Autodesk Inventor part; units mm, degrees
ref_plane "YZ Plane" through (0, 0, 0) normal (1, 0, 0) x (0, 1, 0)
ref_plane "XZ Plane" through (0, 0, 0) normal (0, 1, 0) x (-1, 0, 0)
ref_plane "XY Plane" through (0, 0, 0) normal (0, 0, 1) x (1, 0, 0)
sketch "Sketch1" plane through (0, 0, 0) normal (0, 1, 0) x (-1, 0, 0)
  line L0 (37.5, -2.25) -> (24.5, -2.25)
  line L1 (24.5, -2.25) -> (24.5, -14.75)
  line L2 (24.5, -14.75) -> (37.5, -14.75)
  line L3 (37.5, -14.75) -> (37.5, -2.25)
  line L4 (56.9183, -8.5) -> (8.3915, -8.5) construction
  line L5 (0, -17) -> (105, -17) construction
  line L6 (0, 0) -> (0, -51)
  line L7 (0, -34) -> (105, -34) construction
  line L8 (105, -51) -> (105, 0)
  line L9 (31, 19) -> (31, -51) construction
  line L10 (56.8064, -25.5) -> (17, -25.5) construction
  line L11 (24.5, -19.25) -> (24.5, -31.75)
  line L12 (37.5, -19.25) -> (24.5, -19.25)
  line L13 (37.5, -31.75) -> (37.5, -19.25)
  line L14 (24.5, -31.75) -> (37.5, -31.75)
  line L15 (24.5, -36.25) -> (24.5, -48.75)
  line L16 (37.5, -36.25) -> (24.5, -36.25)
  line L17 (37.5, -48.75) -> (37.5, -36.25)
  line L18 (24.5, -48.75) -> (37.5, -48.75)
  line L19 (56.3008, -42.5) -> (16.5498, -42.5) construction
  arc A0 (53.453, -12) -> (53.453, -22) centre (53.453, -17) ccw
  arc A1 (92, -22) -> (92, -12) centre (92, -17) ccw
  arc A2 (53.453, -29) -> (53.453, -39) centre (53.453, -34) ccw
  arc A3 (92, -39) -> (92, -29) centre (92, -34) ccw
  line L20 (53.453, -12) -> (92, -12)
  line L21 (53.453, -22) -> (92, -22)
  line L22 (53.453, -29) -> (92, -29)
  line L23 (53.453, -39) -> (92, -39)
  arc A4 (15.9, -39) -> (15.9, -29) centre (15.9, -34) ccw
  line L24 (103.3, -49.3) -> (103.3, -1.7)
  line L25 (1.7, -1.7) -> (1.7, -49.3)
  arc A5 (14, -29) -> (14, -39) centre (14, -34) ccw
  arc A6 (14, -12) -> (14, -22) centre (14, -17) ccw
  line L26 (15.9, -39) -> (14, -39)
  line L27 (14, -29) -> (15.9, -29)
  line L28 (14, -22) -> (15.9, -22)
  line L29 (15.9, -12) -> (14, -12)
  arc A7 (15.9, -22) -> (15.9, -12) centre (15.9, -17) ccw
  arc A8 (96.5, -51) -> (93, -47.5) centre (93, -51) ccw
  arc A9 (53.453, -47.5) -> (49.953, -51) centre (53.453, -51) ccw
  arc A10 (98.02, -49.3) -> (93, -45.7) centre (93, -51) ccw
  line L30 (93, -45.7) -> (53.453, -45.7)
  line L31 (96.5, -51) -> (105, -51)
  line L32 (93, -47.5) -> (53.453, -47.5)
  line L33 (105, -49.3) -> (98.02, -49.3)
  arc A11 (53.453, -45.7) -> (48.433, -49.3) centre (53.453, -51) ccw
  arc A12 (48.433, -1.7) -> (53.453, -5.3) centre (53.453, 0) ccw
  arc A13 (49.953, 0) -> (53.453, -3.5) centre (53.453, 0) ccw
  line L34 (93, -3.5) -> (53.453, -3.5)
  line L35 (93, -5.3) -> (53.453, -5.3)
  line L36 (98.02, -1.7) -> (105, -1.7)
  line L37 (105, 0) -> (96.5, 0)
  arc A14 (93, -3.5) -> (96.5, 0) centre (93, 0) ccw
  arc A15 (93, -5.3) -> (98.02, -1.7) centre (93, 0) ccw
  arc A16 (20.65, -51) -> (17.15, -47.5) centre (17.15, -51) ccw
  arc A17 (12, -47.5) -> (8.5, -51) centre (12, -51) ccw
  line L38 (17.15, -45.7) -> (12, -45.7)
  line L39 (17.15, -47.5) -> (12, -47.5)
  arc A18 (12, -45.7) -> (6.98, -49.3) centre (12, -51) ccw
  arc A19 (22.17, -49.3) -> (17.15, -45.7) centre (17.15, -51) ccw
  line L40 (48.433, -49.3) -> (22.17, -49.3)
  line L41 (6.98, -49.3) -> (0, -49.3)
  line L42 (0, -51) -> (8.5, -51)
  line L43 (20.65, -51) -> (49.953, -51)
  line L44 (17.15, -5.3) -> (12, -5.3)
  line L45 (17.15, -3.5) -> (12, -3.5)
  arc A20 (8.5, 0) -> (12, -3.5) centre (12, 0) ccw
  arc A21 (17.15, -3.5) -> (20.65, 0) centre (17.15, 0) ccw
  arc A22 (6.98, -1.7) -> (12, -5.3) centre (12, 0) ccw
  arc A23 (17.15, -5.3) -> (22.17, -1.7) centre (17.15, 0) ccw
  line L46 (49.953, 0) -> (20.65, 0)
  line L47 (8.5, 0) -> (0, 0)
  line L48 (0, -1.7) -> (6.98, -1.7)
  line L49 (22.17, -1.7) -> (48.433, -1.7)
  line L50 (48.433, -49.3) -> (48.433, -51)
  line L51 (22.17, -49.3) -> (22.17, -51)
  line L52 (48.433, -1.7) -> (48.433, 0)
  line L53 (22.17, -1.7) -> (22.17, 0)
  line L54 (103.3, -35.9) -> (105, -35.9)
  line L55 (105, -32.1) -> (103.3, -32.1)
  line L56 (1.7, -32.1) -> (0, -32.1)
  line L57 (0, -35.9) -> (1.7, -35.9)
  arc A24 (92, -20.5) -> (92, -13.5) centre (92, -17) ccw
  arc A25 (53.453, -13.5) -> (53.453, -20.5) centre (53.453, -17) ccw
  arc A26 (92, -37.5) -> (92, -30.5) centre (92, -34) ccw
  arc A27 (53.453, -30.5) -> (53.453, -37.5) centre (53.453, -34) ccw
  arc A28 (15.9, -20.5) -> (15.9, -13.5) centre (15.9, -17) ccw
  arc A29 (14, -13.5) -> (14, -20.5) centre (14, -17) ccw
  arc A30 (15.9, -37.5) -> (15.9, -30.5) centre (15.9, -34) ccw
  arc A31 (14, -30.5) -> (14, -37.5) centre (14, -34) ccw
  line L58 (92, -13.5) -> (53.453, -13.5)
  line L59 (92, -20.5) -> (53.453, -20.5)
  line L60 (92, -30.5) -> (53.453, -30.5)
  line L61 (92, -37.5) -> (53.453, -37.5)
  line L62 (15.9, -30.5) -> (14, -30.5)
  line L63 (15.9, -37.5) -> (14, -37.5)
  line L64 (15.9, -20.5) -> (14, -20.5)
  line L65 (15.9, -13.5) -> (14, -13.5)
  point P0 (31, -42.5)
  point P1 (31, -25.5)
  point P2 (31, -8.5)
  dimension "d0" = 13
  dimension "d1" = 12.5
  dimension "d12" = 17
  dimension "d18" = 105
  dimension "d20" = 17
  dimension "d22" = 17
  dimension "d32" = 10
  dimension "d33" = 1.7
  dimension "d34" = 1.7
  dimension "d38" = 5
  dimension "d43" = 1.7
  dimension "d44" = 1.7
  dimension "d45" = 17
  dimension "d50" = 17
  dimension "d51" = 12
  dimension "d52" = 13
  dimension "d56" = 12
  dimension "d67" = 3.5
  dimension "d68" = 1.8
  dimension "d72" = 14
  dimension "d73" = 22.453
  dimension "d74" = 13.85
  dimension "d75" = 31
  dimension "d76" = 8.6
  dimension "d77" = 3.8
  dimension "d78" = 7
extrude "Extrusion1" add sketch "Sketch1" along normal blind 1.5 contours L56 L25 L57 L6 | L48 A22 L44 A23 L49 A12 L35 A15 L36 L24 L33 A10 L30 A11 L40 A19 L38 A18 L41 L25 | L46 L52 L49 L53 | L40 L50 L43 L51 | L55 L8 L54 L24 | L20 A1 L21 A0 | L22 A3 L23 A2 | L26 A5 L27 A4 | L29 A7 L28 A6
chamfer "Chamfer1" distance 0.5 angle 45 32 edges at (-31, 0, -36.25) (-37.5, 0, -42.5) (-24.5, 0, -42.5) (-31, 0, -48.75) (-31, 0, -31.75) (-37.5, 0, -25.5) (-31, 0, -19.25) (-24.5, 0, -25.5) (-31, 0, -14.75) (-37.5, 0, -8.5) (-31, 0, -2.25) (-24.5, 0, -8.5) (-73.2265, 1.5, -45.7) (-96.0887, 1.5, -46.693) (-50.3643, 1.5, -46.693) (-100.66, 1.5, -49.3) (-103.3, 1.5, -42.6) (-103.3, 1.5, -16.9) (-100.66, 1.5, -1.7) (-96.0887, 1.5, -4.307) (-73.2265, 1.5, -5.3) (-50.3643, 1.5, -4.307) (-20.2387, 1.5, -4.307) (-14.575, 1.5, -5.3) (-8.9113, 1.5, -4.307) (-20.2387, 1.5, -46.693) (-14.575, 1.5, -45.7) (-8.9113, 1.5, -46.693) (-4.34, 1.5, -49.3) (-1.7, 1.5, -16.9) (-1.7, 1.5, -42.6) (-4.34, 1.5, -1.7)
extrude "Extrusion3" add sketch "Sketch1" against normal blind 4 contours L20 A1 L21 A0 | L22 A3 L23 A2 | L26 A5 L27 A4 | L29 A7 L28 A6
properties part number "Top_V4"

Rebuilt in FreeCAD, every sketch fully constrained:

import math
import FreeCAD as App
import Part
import Sketcher

V = App.Vector
Q = App.Units.Quantity


def edges_at(feature, points):
    """Names of the edges that pass closest to the given points."""
    edges = feature.Shape.Edges
    near = lambda p: min(range(len(edges)), key=lambda i: edges[i].distToShape(Part.Vertex(*p))[0])
    return sorted({f"Edge{near(p) + 1}" for p in points})


def add_polygon(sketch, points):
    """Adds a closed chain of lines whose ends are joined by coincident constraints."""
    first, n = sketch.GeometryCount, len(points)
    for a, b in zip(points, points[1:] + points[:1]):
        sketch.addGeometry(Part.LineSegment(App.Vector(*a, 0), App.Vector(*b, 0)), False)
    for i in range(n):
        sketch.addConstraint(Sketcher.Constraint("Coincident", first + i, 2, first + (i + 1) % n, 1))

doc = App.newDocument("Part")
body = doc.addObject("PartDesign::Body", "Body")

# Sketch on XZ plane
sketch1 = body.newObject("Sketcher::SketchObject", "Sketch")
sketch1.AttachmentSupport = (doc.getObject("XZ_Plane"), [""])
sketch1.MapMode = "FlatFace"
sketch1.addGeometry(Part.LineSegment(V(-1.7, -32.1, 0), V(0, -32.1, 0)), False)  # 0
sketch1.addGeometry(Part.LineSegment(V(0, -32.1, 0), V(0, -35.9, 0)), False)  # 1
sketch1.addGeometry(Part.LineSegment(V(0, -35.9, 0), V(-1.7, -35.9, 0)), False)  # 2
sketch1.addGeometry(Part.LineSegment(V(-1.7, -35.9, 0), V(-1.7, -49.3, 0)), False)  # 3
sketch1.addGeometry(Part.LineSegment(V(-1.7, -49.3, 0), V(-6.98, -49.3, 0)), False)  # 4
sketch1.addGeometry(Part.ArcOfCircle(Part.Circle(V(-12, -51, 0), V(0, 0, 1), 5.3), math.radians(18.708435), math.radians(90)), False)  # 5
sketch1.addGeometry(Part.LineSegment(V(-12, -45.7, 0), V(-17.15, -45.7, 0)), False)  # 6
sketch1.addGeometry(Part.ArcOfCircle(Part.Circle(V(-17.15, -51, 0), V(0, 0, 1), 5.300038), math.radians(90), math.radians(161.291565)), False)  # 7
sketch1.addGeometry(Part.LineSegment(V(-22.17, -49.3, 0), V(-22.17, -51, 0)), False)  # 8
sketch1.addGeometry(Part.LineSegment(V(-22.17, -51, 0), V(-48.433, -51, 0)), False)  # 9
sketch1.addGeometry(Part.LineSegment(V(-48.433, -51, 0), V(-48.433, -49.3, 0)), False)  # 10
sketch1.addGeometry(Part.ArcOfCircle(Part.Circle(V(-53.453, -51, 0), V(0, 0, 1), 5.3), math.radians(18.708435), math.radians(90)), False)  # 11
sketch1.addGeometry(Part.LineSegment(V(-53.453, -45.7, 0), V(-93, -45.7, 0)), False)  # 12
sketch1.addGeometry(Part.ArcOfCircle(Part.Circle(V(-93, -51, 0), V(0, 0, 1), 5.300038), math.radians(90), math.radians(161.291565)), False)  # 13
sketch1.addGeometry(Part.LineSegment(V(-98.02, -49.3, 0), V(-103.3, -49.3, 0)), False)  # 14
sketch1.addGeometry(Part.LineSegment(V(-103.3, -49.3, 0), V(-103.3, -35.9, 0)), False)  # 15
sketch1.addGeometry(Part.LineSegment(V(-103.3, -35.9, 0), V(-105, -35.9, 0)), False)  # 16
sketch1.addGeometry(Part.LineSegment(V(-105, -35.9, 0), V(-105, -32.1, 0)), False)  # 17
sketch1.addGeometry(Part.LineSegment(V(-105, -32.1, 0), V(-103.3, -32.1, 0)), False)  # 18
sketch1.addGeometry(Part.LineSegment(V(-103.3, -32.1, 0), V(-103.3, -1.7, 0)), False)  # 19
sketch1.addGeometry(Part.LineSegment(V(-103.3, -1.7, 0), V(-98.02, -1.7, 0)), False)  # 20
sketch1.addGeometry(Part.ArcOfCircle(Part.Circle(V(-93, 0, 0), V(0, 0, 1), 5.3), math.radians(-161.291565), math.radians(-90)), False)  # 21
sketch1.addGeometry(Part.LineSegment(V(-93, -5.3, 0), V(-53.453, -5.3, 0)), False)  # 22
sketch1.addGeometry(Part.ArcOfCircle(Part.Circle(V(-53.453, 0, 0), V(0, 0, 1), 5.300038), math.radians(-90), math.radians(-18.708435)), False)  # 23
sketch1.addGeometry(Part.LineSegment(V(-48.433, -1.7, 0), V(-48.433, 0, 0)), False)  # 24
sketch1.addGeometry(Part.LineSegment(V(-48.433, 0, 0), V(-22.17, 0, 0)), False)  # 25
sketch1.addGeometry(Part.LineSegment(V(-22.17, 0, 0), V(-22.17, -1.7, 0)), False)  # 26
sketch1.addGeometry(Part.ArcOfCircle(Part.Circle(V(-17.15, 0, 0), V(0, 0, 1), 5.3), math.radians(-161.291565), math.radians(-90)), False)  # 27
sketch1.addGeometry(Part.LineSegment(V(-17.15, -5.3, 0), V(-12, -5.3, 0)), False)  # 28
sketch1.addGeometry(Part.ArcOfCircle(Part.Circle(V(-12, 0, 0), V(0, 0, 1), 5.300038), math.radians(-90), math.radians(-18.708435)), False)  # 29
sketch1.addGeometry(Part.LineSegment(V(-6.98, -1.7, 0), V(-1.7, -1.7, 0)), False)  # 30
sketch1.addGeometry(Part.LineSegment(V(-1.7, -1.7, 0), V(-1.7, -32.1, 0)), False)  # 31
add_polygon(sketch1, [(-24.5, -48.75), (-24.5, -36.25), (-37.5, -36.25), (-37.5, -48.75)])  # lines 32-35
add_polygon(sketch1, [(-24.5, -31.75), (-24.5, -19.25), (-37.5, -19.25), (-37.5, -31.75)])  # lines 36-39
add_polygon(sketch1, [(-24.5, -2.25), (-37.5, -2.25), (-37.5, -14.75), (-24.5, -14.75)])  # lines 40-43
sketch1.addGeometry(Part.LineSegment(V(-92, -20.5, 0), V(-53.453, -20.5, 0)), False)  # 44
sketch1.addGeometry(Part.ArcOfCircle(Part.Circle(V(-53.453, -17, 0), V(0, 0, 1), 3.5), math.radians(-90), math.radians(90)), False)  # 45
sketch1.addGeometry(Part.LineSegment(V(-53.453, -13.5, 0), V(-92, -13.5, 0)), False)  # 46
sketch1.addGeometry(Part.ArcOfCircle(Part.Circle(V(-92, -17, 0), V(0, 0, 1), 3.5), math.radians(90), math.radians(270)), False)  # 47
sketch1.addGeometry(Part.ArcOfCircle(Part.Circle(V(-15.9, -34, 0), V(0, 0, 1), 3.5), math.radians(90), math.radians(270)), False)  # 48
sketch1.addGeometry(Part.LineSegment(V(-15.9, -37.5, 0), V(-14, -37.5, 0)), False)  # 49
sketch1.addGeometry(Part.ArcOfCircle(Part.Circle(V(-14, -34, 0), V(0, 0, 1), 3.5), math.radians(-90), math.radians(90)), False)  # 50
sketch1.addGeometry(Part.LineSegment(V(-14, -30.5, 0), V(-15.9, -30.5, 0)), False)  # 51
sketch1.addGeometry(Part.ArcOfCircle(Part.Circle(V(-92, -34, 0), V(0, 0, 1), 3.5), math.radians(90), math.radians(270)), False)  # 52
sketch1.addGeometry(Part.LineSegment(V(-92, -37.5, 0), V(-53.453, -37.5, 0)), False)  # 53
sketch1.addGeometry(Part.ArcOfCircle(Part.Circle(V(-53.453, -34, 0), V(0, 0, 1), 3.5), math.radians(-90), math.radians(90)), False)  # 54
sketch1.addGeometry(Part.LineSegment(V(-53.453, -30.5, 0), V(-92, -30.5, 0)), False)  # 55
sketch1.addGeometry(Part.ArcOfCircle(Part.Circle(V(-15.9, -17, 0), V(0, 0, 1), 3.5), math.radians(90), math.radians(270)), False)  # 56
sketch1.addGeometry(Part.LineSegment(V(-15.9, -20.5, 0), V(-14, -20.5, 0)), False)  # 57
sketch1.addGeometry(Part.ArcOfCircle(Part.Circle(V(-14, -17, 0), V(0, 0, 1), 3.5), math.radians(-90), math.radians(90)), False)  # 58
sketch1.addGeometry(Part.LineSegment(V(-14, -13.5, 0), V(-15.9, -13.5, 0)), False)  # 59
sketch1.addConstraint([
    Sketcher.Constraint("Coincident", 0, 2, 1, 1),
    Sketcher.Constraint("Coincident", 1, 2, 2, 1),
    Sketcher.Constraint("Coincident", 2, 2, 3, 1),
    Sketcher.Constraint("Coincident", 3, 2, 4, 1),
    Sketcher.Constraint("Coincident", 4, 2, 5, 1),
    Sketcher.Constraint("Tangent", 5, 2, 6, 1),
    Sketcher.Constraint("Tangent", 6, 2, 7, 1),
    Sketcher.Constraint("Coincident", 7, 2, 8, 1),
    Sketcher.Constraint("Coincident", 8, 2, 9, 1),
    Sketcher.Constraint("Coincident", 9, 2, 10, 1),
    Sketcher.Constraint("Coincident", 10, 2, 11, 1),
    Sketcher.Constraint("Tangent", 11, 2, 12, 1),
    Sketcher.Constraint("Tangent", 12, 2, 13, 1),
    Sketcher.Constraint("Coincident", 13, 2, 14, 1),
    Sketcher.Constraint("Coincident", 14, 2, 15, 1),
    Sketcher.Constraint("Coincident", 15, 2, 16, 1),
    Sketcher.Constraint("Coincident", 16, 2, 17, 1),
    Sketcher.Constraint("Coincident", 17, 2, 18, 1),
    Sketcher.Constraint("Coincident", 18, 2, 19, 1),
    Sketcher.Constraint("Coincident", 19, 2, 20, 1),
    Sketcher.Constraint("Coincident", 20, 2, 21, 1),
    Sketcher.Constraint("Tangent", 21, 2, 22, 1),
    Sketcher.Constraint("Tangent", 22, 2, 23, 1),
    Sketcher.Constraint("Coincident", 23, 2, 24, 1),
    Sketcher.Constraint("Coincident", 24, 2, 25, 1),
    Sketcher.Constraint("Coincident", 25, 2, 26, 1),
    Sketcher.Constraint("Coincident", 26, 2, 27, 1),
    Sketcher.Constraint("Tangent", 27, 2, 28, 1),
    Sketcher.Constraint("Tangent", 28, 2, 29, 1),
    Sketcher.Constraint("Coincident", 29, 2, 30, 1),
    Sketcher.Constraint("Coincident", 30, 2, 31, 1),
    Sketcher.Constraint("Coincident", 31, 2, 0, 1),
    Sketcher.Constraint("Tangent", 44, 2, 45, 1),
    Sketcher.Constraint("Tangent", 45, 2, 46, 1),
    Sketcher.Constraint("Tangent", 46, 2, 47, 1),
    Sketcher.Constraint("Tangent", 47, 2, 44, 1),
    Sketcher.Constraint("Tangent", 48, 2, 49, 1),
    Sketcher.Constraint("Tangent", 49, 2, 50, 1),
    Sketcher.Constraint("Tangent", 50, 2, 51, 1),
    Sketcher.Constraint("Tangent", 51, 2, 48, 1),
    Sketcher.Constraint("Tangent", 52, 2, 53, 1),
    Sketcher.Constraint("Tangent", 53, 2, 54, 1),
    Sketcher.Constraint("Tangent", 54, 2, 55, 1),
    Sketcher.Constraint("Tangent", 55, 2, 52, 1),
    Sketcher.Constraint("Tangent", 56, 2, 57, 1),
    Sketcher.Constraint("Tangent", 57, 2, 58, 1),
    Sketcher.Constraint("Tangent", 58, 2, 59, 1),
    Sketcher.Constraint("Tangent", 59, 2, 56, 1),
    Sketcher.Constraint("Horizontal", 0),
    Sketcher.Constraint("Vertical", 1),
    Sketcher.Constraint("Horizontal", 2),
    Sketcher.Constraint("Vertical", 3),
    Sketcher.Constraint("Horizontal", 4),
    Sketcher.Constraint("Horizontal", 6),
    Sketcher.Constraint("Vertical", 8),
    Sketcher.Constraint("Horizontal", 9),
    Sketcher.Constraint("Vertical", 10),
    Sketcher.Constraint("Horizontal", 12),
    Sketcher.Constraint("Horizontal", 14),
    Sketcher.Constraint("Vertical", 15),
    Sketcher.Constraint("Horizontal", 16),
    Sketcher.Constraint("Vertical", 17),
    Sketcher.Constraint("Horizontal", 18),
    Sketcher.Constraint("Vertical", 19),
    Sketcher.Constraint("Horizontal", 20),
    Sketcher.Constraint("Horizontal", 22),
    Sketcher.Constraint("Vertical", 24),
    Sketcher.Constraint("Horizontal", 25),
    Sketcher.Constraint("Vertical", 26),
    Sketcher.Constraint("Horizontal", 28),
    Sketcher.Constraint("Horizontal", 30),
    Sketcher.Constraint("Vertical", 31),
    Sketcher.Constraint("Vertical", 32),
    Sketcher.Constraint("Horizontal", 33),
    Sketcher.Constraint("Vertical", 34),
    Sketcher.Constraint("Horizontal", 35),
    Sketcher.Constraint("Vertical", 36),
    Sketcher.Constraint("Horizontal", 37),
    Sketcher.Constraint("Vertical", 38),
    Sketcher.Constraint("Horizontal", 39),
    Sketcher.Constraint("Horizontal", 40),
    Sketcher.Constraint("Vertical", 41),
    Sketcher.Constraint("Horizontal", 42),
    Sketcher.Constraint("Vertical", 43),
    Sketcher.Constraint("Horizontal", 44),
    Sketcher.Constraint("Horizontal", 46),
    Sketcher.Constraint("Horizontal", 49),
    Sketcher.Constraint("Horizontal", 51),
    Sketcher.Constraint("Horizontal", 53),
    Sketcher.Constraint("Horizontal", 55),
    Sketcher.Constraint("Horizontal", 57),
    Sketcher.Constraint("Horizontal", 59),
    Sketcher.Constraint("Equal", 5, 7),
    Sketcher.Constraint("Equal", 7, 11),
    Sketcher.Constraint("Equal", 11, 13),
    Sketcher.Constraint("Equal", 13, 21),
    Sketcher.Constraint("Equal", 21, 23),
    Sketcher.Constraint("Equal", 23, 27),
    Sketcher.Constraint("Equal", 27, 29),
    Sketcher.Constraint("Equal", 47, 48),
    Sketcher.Constraint("Equal", 50, 52),
    Sketcher.Constraint("Equal", 54, 56),
    Sketcher.Constraint("PointOnObject", 21, 3, -1),
    Sketcher.Constraint("PointOnObject", 27, 3, -1),
    Sketcher.Constraint("PointOnObject", 0, 2, -2),
    Sketcher.Constraint("PointOnObject", 24, 2, -1),
    Sketcher.Constraint("Horizontal", 7, 3, 11, 3),
    Sketcher.Constraint("Horizontal", 50, 3, 52, 3),
    Sketcher.Constraint("Horizontal", 47, 3, 56, 3),
    Sketcher.Constraint("Horizontal", 4, 2, 7, 2),
    Sketcher.Constraint("Horizontal", 13, 3, 8, 2),
    Sketcher.Constraint("Horizontal", 7, 2, 10, 2),
    Sketcher.Constraint("Horizontal", 10, 2, 13, 2),
    Sketcher.Constraint("Horizontal", 2, 2, 15, 2),
    Sketcher.Constraint("Horizontal", 0, 2, 17, 2),
    Sketcher.Constraint("Horizontal", 20, 2, 23, 2),
    Sketcher.Constraint("Horizontal", 23, 2, 26, 2),
    Sketcher.Constraint("Horizontal", 26, 2, 29, 2),
    Sketcher.Constraint("Vertical", 13, 3, 21, 3),
    Sketcher.Constraint("Vertical", 11, 3, 23, 3),
    Sketcher.Constraint("Vertical", 7, 3, 27, 3),
    Sketcher.Constraint("Vertical", 5, 3, 29, 3),
    Sketcher.Constraint("Vertical", 23, 3, 45, 3),
    Sketcher.Constraint("Vertical", 47, 3, 52, 3),
    Sketcher.Constraint("Vertical", 45, 3, 54, 3),
    Sketcher.Constraint("Vertical", 48, 3, 56, 3),
    Sketcher.Constraint("Vertical", 50, 3, 58, 3),
    Sketcher.Constraint("Vertical", 15, 2, 18, 2),
    Sketcher.Constraint("Vertical", 13, 2, 20, 2),
    Sketcher.Constraint("Vertical", 3, 2, 30, 2),
    Sketcher.Constraint("Vertical", 35, 2, 36, 2),
    Sketcher.Constraint("Vertical", 34, 2, 37, 2),
    Sketcher.Constraint("Vertical", 38, 2, 40, 2),
    Sketcher.Constraint("Vertical", 39, 2, 42, 2),
    Sketcher.Constraint("Equal", 4, 14),
    Sketcher.Constraint("Equal", 2, 16),
    Sketcher.Constraint("Equal", 18, 8),
    Sketcher.Constraint("Equal", 34, 36),
    Sketcher.Constraint("Equal", 38, 41),
    Sketcher.Constraint("Radius", 45, Q("3.5 mm")),
    Sketcher.Constraint("DistanceX", 33, 2, 33, 1, Q("13 mm")),
    Sketcher.Constraint("DistanceX", 0, 1, 0, 2, Q("1.7 mm")),
    Sketcher.Constraint("DistanceY", 1, 2, 1, 1, Q("3.8 mm")),
    Sketcher.Constraint("DistanceY", 32, 1, 32, 2, Q("12.5 mm")),
    Sketcher.Constraint("DistanceX", 5, 3, -1, 1, Q("12 mm")),
    Sketcher.Constraint("DistanceY", 45, 3, -1, 1, Q("17 mm")),
    Sketcher.Constraint("DistanceX", 50, 3, -1, 1, Q("14 mm")),
    Sketcher.Constraint("DistanceX", 16, 2, -1, 1, Q("105 mm")),
    Sketcher.Constraint("Radius", 5, Q("5.3 mm")),
    Sketcher.Constraint("DistanceX", 49, 1, 49, 2, Q("1.9 mm")),
    Sketcher.Constraint("DistanceY", 3, 2, 3, 1, Q("13.4 mm")),
    Sketcher.Constraint("DistanceY", 19, 1, 19, 2, Q("30.4 mm")),
    Sketcher.Constraint("DistanceX", 47, 3, -1, 1, Q("92 mm")),
    Sketcher.Constraint("DistanceY", 48, 3, -1, 1, Q("34 mm")),
    Sketcher.Constraint("DistanceX", 6, 2, 6, 1, Q("5.15 mm")),
    Sketcher.Constraint("DistanceX", 32, 2, -1, 1, Q("24.5 mm")),
    Sketcher.Constraint("DistanceX", 9, 2, 9, 1, Q("26.263 mm")),
    Sketcher.Constraint("DistanceY", 32, 2, -1, 1, Q("36.25 mm")),
    Sketcher.Constraint("DistanceY", 36, 2, -1, 1, Q("19.25 mm")),
    Sketcher.Constraint("DistanceY", 40, 2, -1, 1, Q("2.25 mm")),
])
pad1 = body.newObject("PartDesign::Pad", "Pad")
pad1.Profile = sketch1
pad1.Length = 1.5
pad1.Reversed = True
doc.recompute()

chamfer = body.newObject("PartDesign::Chamfer", "Chamfer")
chamfer.Base = (pad1, edges_at(pad1, [
    (-31, 0, -36.25),
    (-37.5, 0, -42.5),
    (-24.5, 0, -42.5),
    (-31, 0, -48.75),
    (-31, 0, -31.75),
    (-37.5, 0, -25.5),
    (-31, 0, -19.25),
    (-24.5, 0, -25.5),
    (-31, 0, -14.75),
    (-37.5, 0, -8.5),
    (-31, 0, -2.25),
    (-24.5, 0, -8.5),
    (-73.227, 1.5, -45.7),
    (-96.089, 1.5, -46.693),
    (-50.364, 1.5, -46.693),
    (-100.66, 1.5, -49.3),
    (-103.3, 1.5, -42.6),
    (-103.3, 1.5, -16.9),
    (-100.66, 1.5, -1.7),
    (-96.089, 1.5, -4.307),
    (-73.227, 1.5, -5.3),
    (-50.364, 1.5, -4.307),
    (-20.239, 1.5, -4.307),
    (-14.575, 1.5, -5.3),
    (-8.911, 1.5, -4.307),
    (-20.239, 1.5, -46.693),
    (-14.575, 1.5, -45.7),
    (-8.911, 1.5, -46.693),
    (-4.34, 1.5, -49.3),
    (-1.7, 1.5, -16.9),
    (-1.7, 1.5, -42.6),
    (-4.34, 1.5, -1.7),
]))
chamfer.Size = 0.5

# Sketch on XZ plane
sketch2 = body.newObject("Sketcher::SketchObject", "Sketch001")
sketch2.AttachmentSupport = (doc.getObject("XZ_Plane"), [""])
sketch2.MapMode = "FlatFace"
sketch2.addGeometry([
    Part.LineSegment(V(-92, -12, 0), V(-53.453, -12, 0)),  # 0
    Part.ArcOfCircle(Part.Circle(V(-53.453, -17, 0), V(0, 0, 1), 5), math.radians(-90), math.radians(90)),  # 1
    Part.LineSegment(V(-53.453, -22, 0), V(-92, -22, 0)),  # 2
    Part.ArcOfCircle(Part.Circle(V(-92, -17, 0), V(0, 0, 1), 5), math.radians(90), math.radians(270)),  # 3
    Part.ArcOfCircle(Part.Circle(V(-92, -17, 0), V(0, 0, 1), 3.5), math.radians(90), math.radians(270)),  # 4
    Part.LineSegment(V(-92, -20.5, 0), V(-53.453, -20.5, 0)),  # 5
    Part.ArcOfCircle(Part.Circle(V(-53.453, -17, 0), V(0, 0, 1), 3.5), math.radians(-90), math.radians(90)),  # 6
    Part.LineSegment(V(-53.453, -13.5, 0), V(-92, -13.5, 0)),  # 7
    Part.LineSegment(V(-92, -29, 0), V(-53.453, -29, 0)),  # 8
    Part.ArcOfCircle(Part.Circle(V(-53.453, -34, 0), V(0, 0, 1), 5), math.radians(-90), math.radians(90)),  # 9
    Part.LineSegment(V(-53.453, -39, 0), V(-92, -39, 0)),  # 10
    Part.ArcOfCircle(Part.Circle(V(-92, -34, 0), V(0, 0, 1), 5), math.radians(90), math.radians(270)),  # 11
    Part.ArcOfCircle(Part.Circle(V(-92, -34, 0), V(0, 0, 1), 3.5), math.radians(90), math.radians(270)),  # 12
    Part.LineSegment(V(-92, -37.5, 0), V(-53.453, -37.5, 0)),  # 13
    Part.ArcOfCircle(Part.Circle(V(-53.453, -34, 0), V(0, 0, 1), 3.5), math.radians(-90), math.radians(90)),  # 14
    Part.LineSegment(V(-53.453, -30.5, 0), V(-92, -30.5, 0)),  # 15
    Part.LineSegment(V(-14, -39, 0), V(-15.9, -39, 0)),  # 16
    Part.ArcOfCircle(Part.Circle(V(-15.9, -34, 0), V(0, 0, 1), 5), math.radians(90), math.radians(270)),  # 17
    Part.LineSegment(V(-15.9, -29, 0), V(-14, -29, 0)),  # 18
    Part.ArcOfCircle(Part.Circle(V(-14, -34, 0), V(0, 0, 1), 5), math.radians(-90), math.radians(90)),  # 19
    Part.ArcOfCircle(Part.Circle(V(-15.9, -34, 0), V(0, 0, 1), 3.5), math.radians(90), math.radians(270)),  # 20
    Part.LineSegment(V(-15.9, -37.5, 0), V(-14, -37.5, 0)),  # 21
    Part.ArcOfCircle(Part.Circle(V(-14, -34, 0), V(0, 0, 1), 3.5), math.radians(-90), math.radians(90)),  # 22
    Part.LineSegment(V(-14, -30.5, 0), V(-15.9, -30.5, 0)),  # 23
    Part.LineSegment(V(-15.9, -12, 0), V(-14, -12, 0)),  # 24
    Part.ArcOfCircle(Part.Circle(V(-14, -17, 0), V(0, 0, 1), 5), math.radians(-90), math.radians(90)),  # 25
    Part.LineSegment(V(-14, -22, 0), V(-15.9, -22, 0)),  # 26
    Part.ArcOfCircle(Part.Circle(V(-15.9, -17, 0), V(0, 0, 1), 5), math.radians(90), math.radians(270)),  # 27
    Part.ArcOfCircle(Part.Circle(V(-15.9, -17, 0), V(0, 0, 1), 3.5), math.radians(90), math.radians(270)),  # 28
    Part.LineSegment(V(-15.9, -20.5, 0), V(-14, -20.5, 0)),  # 29
    Part.ArcOfCircle(Part.Circle(V(-14, -17, 0), V(0, 0, 1), 3.5), math.radians(-90), math.radians(90)),  # 30
    Part.LineSegment(V(-14, -13.5, 0), V(-15.9, -13.5, 0)),  # 31
], False)
sketch2.addConstraint([
    Sketcher.Constraint("Tangent", 0, 2, 1, 2),
    Sketcher.Constraint("Tangent", 1, 1, 2, 1),
    Sketcher.Constraint("Tangent", 2, 2, 3, 2),
    Sketcher.Constraint("Tangent", 3, 1, 0, 1),
    Sketcher.Constraint("Tangent", 4, 2, 5, 1),
    Sketcher.Constraint("Tangent", 5, 2, 6, 1),
    Sketcher.Constraint("Tangent", 6, 2, 7, 1),
    Sketcher.Constraint("Tangent", 7, 2, 4, 1),
    Sketcher.Constraint("Tangent", 8, 2, 9, 2),
    Sketcher.Constraint("Tangent", 9, 1, 10, 1),
    Sketcher.Constraint("Tangent", 10, 2, 11, 2),
    Sketcher.Constraint("Tangent", 11, 1, 8, 1),
    Sketcher.Constraint("Tangent", 12, 2, 13, 1),
    Sketcher.Constraint("Tangent", 13, 2, 14, 1),
    Sketcher.Constraint("Tangent", 14, 2, 15, 1),
    Sketcher.Constraint("Tangent", 15, 2, 12, 1),
    Sketcher.Constraint("Tangent", 16, 2, 17, 2),
    Sketcher.Constraint("Tangent", 17, 1, 18, 1),
    Sketcher.Constraint("Tangent", 18, 2, 19, 2),
    Sketcher.Constraint("Tangent", 19, 1, 16, 1),
    Sketcher.Constraint("Tangent", 20, 2, 21, 1),
    Sketcher.Constraint("Tangent", 21, 2, 22, 1),
    Sketcher.Constraint("Tangent", 22, 2, 23, 1),
    Sketcher.Constraint("Tangent", 23, 2, 20, 1),
    Sketcher.Constraint("Tangent", 24, 2, 25, 2),
    Sketcher.Constraint("Tangent", 25, 1, 26, 1),
    Sketcher.Constraint("Tangent", 26, 2, 27, 2),
    Sketcher.Constraint("Tangent", 27, 1, 24, 1),
    Sketcher.Constraint("Tangent", 28, 2, 29, 1),
    Sketcher.Constraint("Tangent", 29, 2, 30, 1),
    Sketcher.Constraint("Tangent", 30, 2, 31, 1),
    Sketcher.Constraint("Tangent", 31, 2, 28, 1),
    Sketcher.Constraint("Horizontal", 0),
    Sketcher.Constraint("Horizontal", 2),
    Sketcher.Constraint("Horizontal", 5),
    Sketcher.Constraint("Horizontal", 7),
    Sketcher.Constraint("Horizontal", 8),
    Sketcher.Constraint("Horizontal", 10),
    Sketcher.Constraint("Horizontal", 13),
    Sketcher.Constraint("Horizontal", 15),
    Sketcher.Constraint("Horizontal", 16),
    Sketcher.Constraint("Horizontal", 18),
    Sketcher.Constraint("Horizontal", 21),
    Sketcher.Constraint("Horizontal", 23),
    Sketcher.Constraint("Horizontal", 24),
    Sketcher.Constraint("Horizontal", 26),
    Sketcher.Constraint("Horizontal", 29),
    Sketcher.Constraint("Horizontal", 31),
    Sketcher.Constraint("Coincident", 4, 3, 3, 3),
    Sketcher.Constraint("Coincident", 12, 3, 11, 3),
    Sketcher.Constraint("Coincident", 20, 3, 17, 3),
    Sketcher.Constraint("Coincident", 28, 3, 27, 3),
    Sketcher.Constraint("Equal", 3, 9),
    Sketcher.Constraint("Equal", 6, 12),
    Sketcher.Constraint("Equal", 11, 17),
    Sketcher.Constraint("Equal", 14, 20),
    Sketcher.Constraint("Equal", 19, 25),
    Sketcher.Constraint("Equal", 22, 28),
    Sketcher.Constraint("Horizontal", 14, 3, 17, 3),
    Sketcher.Constraint("Horizontal", 6, 3, 25, 3),
    Sketcher.Constraint("Vertical", 6, 3, 9, 3),
    Sketcher.Constraint("Vertical", 4, 3, 11, 3),
    Sketcher.Constraint("Vertical", 6, 3, 14, 3),
    Sketcher.Constraint("Vertical", 22, 3, 25, 3),
    Sketcher.Constraint("Vertical", 20, 3, 27, 3),
    Sketcher.Constraint("Vertical", 22, 3, 30, 3),
    Sketcher.Constraint("Vertical", 14, 3, 0, 2),
    Sketcher.Constraint("Vertical", 30, 3, 18, 2),
    Sketcher.Constraint("Radius", 1, Q("5 mm")),
    Sketcher.Constraint("Radius", 4, Q("3.5 mm")),
    Sketcher.Constraint("DistanceY", 1, 3, -1, 1, Q("17 mm")),
    Sketcher.Constraint("DistanceX", 19, 3, -1, 1, Q("14 mm")),
    Sketcher.Constraint("DistanceY", 9, 3, 1, 3, Q("17 mm")),
    Sketcher.Constraint("DistanceX", 16, 2, 16, 1, Q("1.9 mm")),
    Sketcher.Constraint("DistanceX", 3, 3, -1, 1, Q("92 mm")),
    Sketcher.Constraint("DistanceX", 0, 1, 0, 2, Q("38.547 mm")),
])
pad2 = body.newObject("PartDesign::Pad", "Pad001")
pad2.Profile = sketch2
pad2.Length = 4

doc.recompute()
